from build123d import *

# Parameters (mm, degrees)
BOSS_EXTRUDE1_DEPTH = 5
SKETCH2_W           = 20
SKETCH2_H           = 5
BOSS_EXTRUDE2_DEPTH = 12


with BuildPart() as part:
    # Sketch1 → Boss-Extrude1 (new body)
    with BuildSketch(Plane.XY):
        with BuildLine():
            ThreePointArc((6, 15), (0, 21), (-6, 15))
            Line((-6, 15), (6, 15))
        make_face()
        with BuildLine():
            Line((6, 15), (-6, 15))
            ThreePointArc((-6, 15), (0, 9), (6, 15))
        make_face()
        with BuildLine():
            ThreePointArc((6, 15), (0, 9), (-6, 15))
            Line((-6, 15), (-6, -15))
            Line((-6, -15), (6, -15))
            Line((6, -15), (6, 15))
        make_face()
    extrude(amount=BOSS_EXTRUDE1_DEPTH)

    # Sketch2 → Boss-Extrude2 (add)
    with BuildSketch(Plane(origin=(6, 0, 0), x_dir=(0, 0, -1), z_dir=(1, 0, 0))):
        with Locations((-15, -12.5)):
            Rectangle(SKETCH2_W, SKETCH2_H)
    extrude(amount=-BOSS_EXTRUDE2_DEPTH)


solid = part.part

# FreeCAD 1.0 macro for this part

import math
import FreeCAD as App
import Part
import Sketcher

V = App.Vector
Q = App.Units.Quantity

doc = App.newDocument("Part")
body = doc.addObject("PartDesign::Body", "Body")

sketch1 = body.newObject("Sketcher::SketchObject", "Sketch")
sketch1.AttachmentSupport = (doc.getObject("XY_Plane"), [""])
sketch1.MapMode = "FlatFace"
sketch1.addGeometry(Part.ArcOfCircle(Part.Circle(V(0, 15, 0), V(0, 0, 1), 6), math.radians(0), math.radians(180)), False)
sketch1.addGeometry(Part.LineSegment(V(-6, 15, 0), V(-6, -15, 0)), False)
sketch1.addGeometry(Part.LineSegment(V(-6, -15, 0), V(6, -15, 0)), False)
sketch1.addGeometry(Part.LineSegment(V(6, -15, 0), V(6, 15, 0)), False)
sketch1.addConstraint(Sketcher.Constraint("Tangent", 0, 2, 1, 1))
sketch1.addConstraint(Sketcher.Constraint("Coincident", 1, 2, 2, 1))
sketch1.addConstraint(Sketcher.Constraint("Coincident", 2, 2, 3, 1))
sketch1.addConstraint(Sketcher.Constraint("Tangent", 3, 2, 0, 1))
sketch1.addConstraint(Sketcher.Constraint("Vertical", 1))
sketch1.addConstraint(Sketcher.Constraint("Horizontal", 2))
sketch1.addConstraint(Sketcher.Constraint("Vertical", 3))
sketch1.addConstraint(Sketcher.Constraint("Symmetric", 0, 2, 2, 2, -1, 1))
sketch1.addConstraint(Sketcher.Constraint("Radius", 0, Q("6 mm")))
sketch1.addConstraint(Sketcher.Constraint("DistanceY", 1, 2, 1, 1, Q("30 mm")))
pad1 = body.newObject("PartDesign::Pad", "Pad")
pad1.Profile = sketch1
pad1.Length = 5

sketch2 = body.newObject("Sketcher::SketchObject", "Sketch001")
sketch2.AttachmentSupport = (doc.getObject("YZ_Plane"), [""])
sketch2.MapMode = "FlatFace"
sketch2.AttachmentOffset = App.Placement(V(0, 0, 6), App.Rotation())
sketch2.addGeometry(Part.LineSegment(V(-10, 25, 0), V(-15, 25, 0)), False)
sketch2.addGeometry(Part.LineSegment(V(-15, 25, 0), V(-15, 5, 0)), False)
sketch2.addGeometry(Part.LineSegment(V(-15, 5, 0), V(-10, 5, 0)), False)
sketch2.addGeometry(Part.LineSegment(V(-10, 5, 0), V(-10, 25, 0)), False)
sketch2.addConstraint(Sketcher.Constraint("Coincident", 0, 2, 1, 1))
sketch2.addConstraint(Sketcher.Constraint("Coincident", 1, 2, 2, 1))
sketch2.addConstraint(Sketcher.Constraint("Coincident", 2, 2, 3, 1))
sketch2.addConstraint(Sketcher.Constraint("Coincident", 3, 2, 0, 1))
sketch2.addConstraint(Sketcher.Constraint("Horizontal", 0))
sketch2.addConstraint(Sketcher.Constraint("Vertical", 1))
sketch2.addConstraint(Sketcher.Constraint("Horizontal", 2))
sketch2.addConstraint(Sketcher.Constraint("Vertical", 3))
sketch2.addConstraint(Sketcher.Constraint("DistanceX", 0, 2, 0, 1, Q("5 mm")))
sketch2.addConstraint(Sketcher.Constraint("DistanceY", 1, 2, 1, 1, Q("20 mm")))
sketch2.addConstraint(Sketcher.Constraint("DistanceX", 0, 2, -1, 1, Q("15 mm")))
sketch2.addConstraint(Sketcher.Constraint("DistanceY", -1, 1, 0, 2, Q("25 mm")))
pad2 = body.newObject("PartDesign::Pad", "Pad001")
pad2.Profile = sketch2
pad2.Length = 12
pad2.Reversed = True

doc.recompute()
